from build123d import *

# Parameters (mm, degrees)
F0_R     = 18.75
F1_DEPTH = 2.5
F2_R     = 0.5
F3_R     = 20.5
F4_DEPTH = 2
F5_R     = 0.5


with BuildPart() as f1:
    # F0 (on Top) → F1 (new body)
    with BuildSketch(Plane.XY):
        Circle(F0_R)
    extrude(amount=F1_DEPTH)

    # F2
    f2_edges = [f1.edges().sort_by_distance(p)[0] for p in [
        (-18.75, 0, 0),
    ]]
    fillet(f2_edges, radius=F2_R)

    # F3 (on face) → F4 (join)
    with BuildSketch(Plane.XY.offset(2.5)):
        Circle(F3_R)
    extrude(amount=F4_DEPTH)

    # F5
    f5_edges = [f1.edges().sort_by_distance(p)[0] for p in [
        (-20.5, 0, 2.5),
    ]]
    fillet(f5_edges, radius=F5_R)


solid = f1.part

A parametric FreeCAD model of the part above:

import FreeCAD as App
import Part
import Sketcher
from FreeCAD import Vector
Q = App.Units.Quantity


def edges_at(feature, points):
    """Names of the edges that pass closest to the given points."""
    edges = feature.Shape.Edges
    near = lambda p: min(range(len(edges)), key=lambda i: edges[i].distToShape(Part.Vertex(*p))[0])
    return sorted({f"Edge{near(p) + 1}" for p in points})

doc = App.newDocument("Part")
params = doc.addObject("Spreadsheet::Sheet", "Params")
for row, (alias, value) in enumerate([
    ("sketch1_diameter", "37.5 mm"),
    ("pad1_length", "2.5 mm"),
    ("fillet_radius", "0.5 mm"),
    ("sketch2_diameter", "41 mm"),
    ("pad2_length", "2 mm"),
    ("fillet2_radius", "0.5 mm"),
], start=1):
    params.set(f"A{row}", alias)
    params.set(f"B{row}", "=" + value)
    params.setAlias(f"B{row}", alias)

body = doc.addObject("PartDesign::Body", "Body")

sketch1 = doc.addObject("Sketcher::SketchObject", "Sketch")
body.addObject(sketch1)
sketch1.AttachmentSupport = (doc.XY_Plane, [""])
sketch1.MapMode = "FlatFace"
sketch1.addGeometry(Part.Circle(Vector(0, 0, 0), Vector(0, 0, 1), 18.75), False)
sketch1.addConstraint([
    Sketcher.Constraint("Coincident", 0, 3, -1, 1),
    Sketcher.Constraint("Diameter", 0, Q("37.5 mm")),
])
sketch1.setExpression("Constraints[1]", "Params.sketch1_diameter")
pad1 = doc.addObject("PartDesign::Pad", "Pad")
body.addObject(pad1)
pad1.Profile = sketch1
pad1.setExpression("Length", "Params.pad1_length")
doc.recompute()

fillet = doc.addObject("PartDesign::Fillet", "Fillet")
body.addObject(fillet)
fillet.Base = (pad1, edges_at(pad1, [(-18.75, 0, 0)]))
fillet.setExpression("Radius", "Params.fillet_radius")

sketch2 = doc.addObject("Sketcher::SketchObject", "Sketch001")
body.addObject(sketch2)
sketch2.AttachmentSupport = (doc.XY_Plane, [""])
sketch2.MapMode = "FlatFace"
sketch2.AttachmentOffset = App.Placement(Vector(0, 0, 2.5), App.Rotation())
sketch2.addGeometry(Part.Circle(Vector(0, 0, 0), Vector(0, 0, 1), 20.5), False)
sketch2.addConstraint([
    Sketcher.Constraint("Coincident", 0, 3, -1, 1),
    Sketcher.Constraint("Diameter", 0, Q("41 mm")),
])
sketch2.setExpression("Constraints[1]", "Params.sketch2_diameter")
pad2 = doc.addObject("PartDesign::Pad", "Pad001")
body.addObject(pad2)
pad2.Profile = sketch2
pad2.setExpression("Length", "Params.pad2_length")
doc.recompute()

fillet2 = doc.addObject("PartDesign::Fillet", "Fillet001")
body.addObject(fillet2)
fillet2.Base = (pad2, edges_at(pad2, [(-20.5, 0, 2.5)]))
fillet2.setExpression("Radius", "Params.fillet2_radius")

doc.recompute()
